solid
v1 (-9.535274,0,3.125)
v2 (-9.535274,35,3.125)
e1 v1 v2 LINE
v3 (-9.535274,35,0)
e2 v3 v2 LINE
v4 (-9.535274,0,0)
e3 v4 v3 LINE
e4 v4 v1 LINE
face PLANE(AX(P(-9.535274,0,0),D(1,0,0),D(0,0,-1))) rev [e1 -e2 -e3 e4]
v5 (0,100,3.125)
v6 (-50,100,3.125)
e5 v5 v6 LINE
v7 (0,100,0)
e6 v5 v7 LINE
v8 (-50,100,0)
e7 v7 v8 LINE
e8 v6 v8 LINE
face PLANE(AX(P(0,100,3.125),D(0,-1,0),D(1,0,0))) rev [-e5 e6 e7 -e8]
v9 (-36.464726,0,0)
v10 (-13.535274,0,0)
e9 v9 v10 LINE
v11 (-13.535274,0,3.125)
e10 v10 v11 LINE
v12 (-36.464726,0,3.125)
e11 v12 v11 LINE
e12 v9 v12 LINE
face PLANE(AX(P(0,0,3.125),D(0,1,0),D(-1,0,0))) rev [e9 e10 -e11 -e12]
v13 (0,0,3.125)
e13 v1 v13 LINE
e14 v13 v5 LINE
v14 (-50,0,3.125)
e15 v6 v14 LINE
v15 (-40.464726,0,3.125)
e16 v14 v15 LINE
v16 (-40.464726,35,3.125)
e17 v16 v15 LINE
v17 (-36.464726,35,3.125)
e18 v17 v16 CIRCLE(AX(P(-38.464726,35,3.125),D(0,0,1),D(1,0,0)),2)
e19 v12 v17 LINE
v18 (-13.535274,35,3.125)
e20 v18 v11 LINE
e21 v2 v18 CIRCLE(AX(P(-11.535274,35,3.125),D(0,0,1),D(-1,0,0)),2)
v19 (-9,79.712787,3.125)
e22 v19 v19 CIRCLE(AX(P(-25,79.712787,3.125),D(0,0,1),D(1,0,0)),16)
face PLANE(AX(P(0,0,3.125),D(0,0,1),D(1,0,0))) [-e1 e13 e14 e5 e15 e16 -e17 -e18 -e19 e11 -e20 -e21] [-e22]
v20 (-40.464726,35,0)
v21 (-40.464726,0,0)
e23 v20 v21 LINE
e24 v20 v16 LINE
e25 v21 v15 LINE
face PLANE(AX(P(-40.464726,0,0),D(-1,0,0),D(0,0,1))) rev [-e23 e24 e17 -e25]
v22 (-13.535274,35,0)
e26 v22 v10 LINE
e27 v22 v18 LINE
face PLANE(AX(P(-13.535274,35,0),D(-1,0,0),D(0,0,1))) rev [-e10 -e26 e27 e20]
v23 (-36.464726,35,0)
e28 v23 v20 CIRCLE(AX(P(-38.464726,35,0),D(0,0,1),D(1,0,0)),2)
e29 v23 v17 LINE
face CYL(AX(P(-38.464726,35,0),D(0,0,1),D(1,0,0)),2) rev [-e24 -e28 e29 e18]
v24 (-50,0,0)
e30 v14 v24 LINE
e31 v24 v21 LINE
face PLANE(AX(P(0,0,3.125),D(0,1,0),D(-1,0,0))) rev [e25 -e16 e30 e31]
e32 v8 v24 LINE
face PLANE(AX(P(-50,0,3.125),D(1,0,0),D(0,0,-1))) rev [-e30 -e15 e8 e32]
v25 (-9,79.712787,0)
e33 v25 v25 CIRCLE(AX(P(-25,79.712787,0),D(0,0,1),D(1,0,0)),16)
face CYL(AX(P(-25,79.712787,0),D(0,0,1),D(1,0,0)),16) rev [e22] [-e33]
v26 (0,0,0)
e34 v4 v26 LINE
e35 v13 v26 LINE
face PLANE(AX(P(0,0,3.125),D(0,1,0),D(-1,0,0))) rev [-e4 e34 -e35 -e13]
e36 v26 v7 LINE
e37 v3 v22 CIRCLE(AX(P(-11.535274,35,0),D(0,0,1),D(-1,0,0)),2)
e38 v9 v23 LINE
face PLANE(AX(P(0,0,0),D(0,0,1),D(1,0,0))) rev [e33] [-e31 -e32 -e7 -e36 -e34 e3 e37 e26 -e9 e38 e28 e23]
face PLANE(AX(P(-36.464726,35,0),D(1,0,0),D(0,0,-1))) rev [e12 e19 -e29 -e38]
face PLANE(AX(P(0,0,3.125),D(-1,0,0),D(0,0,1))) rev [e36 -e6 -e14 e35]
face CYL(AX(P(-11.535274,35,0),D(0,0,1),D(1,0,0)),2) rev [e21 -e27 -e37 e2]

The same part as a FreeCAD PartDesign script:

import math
import FreeCAD as App
import Part
import Sketcher

V = App.Vector

doc = App.newDocument("Part")
params = doc.addObject("Spreadsheet::Sheet", "Params")
for row, (alias, value) in enumerate([
    ("sketch1_width", "50 mm"),
    ("sketch1_height", "100 mm"),
    ("pad1_length", "3.125 mm"),
    ("sketch2_diameter", "32 mm"),
    ("sketch2_radius", "2 mm"),
    ("sketch2_height", "35 mm"),
    ("pocket1_length", "3.125 mm"),
], start=1):
    params.set(f"A{row}", alias)
    params.set(f"B{row}", "=" + value)
    params.setAlias(f"B{row}", alias)

body = doc.addObject("PartDesign::Body", "Body")

# Sketch on XY plane
sketch1 = body.newObject("Sketcher::SketchObject", "Sketch")
sketch1.AttachmentSupport = (doc.getObject("XY_Plane"), [""])
sketch1.MapMode = "FlatFace"
sketch1.addGeometry(Part.LineSegment(V(-50, 100, 0), V(-50, 0, 0)), False)
sketch1.addGeometry(Part.LineSegment(V(-50, 0, 0), V(0, 0, 0)), False)
sketch1.addGeometry(Part.LineSegment(V(0, 0, 0), V(0, 100, 0)), False)
sketch1.addGeometry(Part.LineSegment(V(0, 100, 0), V(-50, 100, 0)), False)
sketch1.addConstraint(Sketcher.Constraint("Coincident", 0, 2, 1, 1))
sketch1.addConstraint(Sketcher.Constraint("Coincident", 1, 2, 2, 1))
sketch1.addConstraint(Sketcher.Constraint("Coincident", 2, 2, 3, 1))
sketch1.addConstraint(Sketcher.Constraint("Coincident", 3, 2, 0, 1))
sketch1.addConstraint(Sketcher.Constraint("Vertical", 0))
sketch1.addConstraint(Sketcher.Constraint("Horizontal", 1))
sketch1.addConstraint(Sketcher.Constraint("Vertical", 2))
sketch1.addConstraint(Sketcher.Constraint("Horizontal", 3))
sketch1.addConstraint(Sketcher.Constraint("Coincident", 1, 2, -1, 1))
sketch1.addConstraint(Sketcher.Constraint("DistanceX", 1, 1, 1, 2, 50.0))
sketch1.addConstraint(Sketcher.Constraint("DistanceY", 0, 2, 0, 1, 100.0))
sketch1.setExpression("Constraints[9]", "Params.sketch1_width")
sketch1.setExpression("Constraints[10]", "Params.sketch1_height")
pad1 = body.newObject("PartDesign::Pad", "Pad")
pad1.Profile = sketch1
pad1.setExpression("Length", "Params.pad1_length")

# Sketch on XY plane
sketch2 = body.newObject("Sketcher::SketchObject", "Sketch001")
sketch2.AttachmentSupport = (doc.getObject("XY_Plane"), [""])
sketch2.MapMode = "FlatFace"
sketch2.AttachmentOffset = App.Placement(V(0, 0, 3.125), App.Rotation())
sketch2.addGeometry(Part.Circle(V(-25, 79.7, 0), V(0, 0, 1), 16), False)
sketch2.addGeometry(Part.LineSegment(V(-36.5, 0, 0), V(-36.5, 35, 0)), False)
sketch2.addGeometry(Part.ArcOfCircle(Part.Circle(V(-38.5, 35, 0), V(0, 0, 1), 2), math.radians(0), math.radians(180)), False)
sketch2.addGeometry(Part.LineSegment(V(-40.5, 35, 0), V(-40.5, 0, 0)), False)
sketch2.addGeometry(Part.LineSegment(V(-40.5, 0, 0), V(-36.5, 0, 0)), False)
sketch2.addGeometry(Part.LineSegment(V(-13.5, 35, 0), V(-13.5, 0, 0)), False)
sketch2.addGeometry(Part.LineSegment(V(-13.5, 0, 0), V(-9.5, 0, 0)), False)
sketch2.addGeometry(Part.LineSegment(V(-9.5, 0, 0), V(-9.5, 35, 0)), False)
sketch2.addGeometry(Part.ArcOfCircle(Part.Circle(V(-11.5, 35, 0), V(0, 0, 1), 2), math.radians(0), math.radians(180)), False)
sketch2.addConstraint(Sketcher.Constraint("Tangent", 1, 2, 2, 1))
sketch2.addConstraint(Sketcher.Constraint("Tangent", 2, 2, 3, 1))
sketch2.addConstraint(Sketcher.Constraint("Coincident", 3, 2, 4, 1))
sketch2.addConstraint(Sketcher.Constraint("Coincident", 4, 2, 1, 1))
sketch2.addConstraint(Sketcher.Constraint("Coincident", 5, 2, 6, 1))
sketch2.addConstraint(Sketcher.Constraint("Coincident", 6, 2, 7, 1))
sketch2.addConstraint(Sketcher.Constraint("Tangent", 7, 2, 8, 1))
sketch2.addConstraint(Sketcher.Constraint("Tangent", 8, 2, 5, 1))
sketch2.addConstraint(Sketcher.Constraint("Vertical", 1))
sketch2.addConstraint(Sketcher.Constraint("Vertical", 3))
sketch2.addConstraint(Sketcher.Constraint("Horizontal", 4))
sketch2.addConstraint(Sketcher.Constraint("Vertical", 5))
sketch2.addConstraint(Sketcher.Constraint("Horizontal", 6))
sketch2.addConstraint(Sketcher.Constraint("Vertical", 7))
sketch2.addConstraint(Sketcher.Constraint("Equal", 2, 8))
sketch2.addConstraint(Sketcher.Constraint("PointOnObject", 3, 2, -1))
sketch2.addConstraint(Sketcher.Constraint("PointOnObject", 5, 2, -1))
sketch2.addConstraint(Sketcher.Constraint("Horizontal", 2, 3, 8, 3))
sketch2.addConstraint(Sketcher.Constraint("Diameter", 0, 32.0))
sketch2.addConstraint(Sketcher.Constraint("Radius", 2, 2.0))
sketch2.addConstraint(Sketcher.Constraint("DistanceY", 1, 1, 1, 2, 35.0))
sketch2.addConstraint(Sketcher.Constraint("DistanceX", 0, 3, -1, 1, 25.0))
sketch2.addConstraint(Sketcher.Constraint("DistanceY", -1, 1, 0, 3, 79.712787))
sketch2.addConstraint(Sketcher.Constraint("DistanceX", 2, 3, -1, 1, 38.464726))
sketch2.addConstraint(Sketcher.Constraint("DistanceX", 8, 3, -1, 1, 11.535274))
sketch2.setExpression("Constraints[18]", "Params.sketch2_diameter")
sketch2.setExpression("Constraints[19]", "Params.sketch2_radius")
sketch2.setExpression("Constraints[20]", "Params.sketch2_height")
pocket1 = body.newObject("PartDesign::Pocket", "Pocket")
pocket1.Profile = sketch2
pocket1.setExpression("Length", "Params.pocket1_length")

doc.recompute()
